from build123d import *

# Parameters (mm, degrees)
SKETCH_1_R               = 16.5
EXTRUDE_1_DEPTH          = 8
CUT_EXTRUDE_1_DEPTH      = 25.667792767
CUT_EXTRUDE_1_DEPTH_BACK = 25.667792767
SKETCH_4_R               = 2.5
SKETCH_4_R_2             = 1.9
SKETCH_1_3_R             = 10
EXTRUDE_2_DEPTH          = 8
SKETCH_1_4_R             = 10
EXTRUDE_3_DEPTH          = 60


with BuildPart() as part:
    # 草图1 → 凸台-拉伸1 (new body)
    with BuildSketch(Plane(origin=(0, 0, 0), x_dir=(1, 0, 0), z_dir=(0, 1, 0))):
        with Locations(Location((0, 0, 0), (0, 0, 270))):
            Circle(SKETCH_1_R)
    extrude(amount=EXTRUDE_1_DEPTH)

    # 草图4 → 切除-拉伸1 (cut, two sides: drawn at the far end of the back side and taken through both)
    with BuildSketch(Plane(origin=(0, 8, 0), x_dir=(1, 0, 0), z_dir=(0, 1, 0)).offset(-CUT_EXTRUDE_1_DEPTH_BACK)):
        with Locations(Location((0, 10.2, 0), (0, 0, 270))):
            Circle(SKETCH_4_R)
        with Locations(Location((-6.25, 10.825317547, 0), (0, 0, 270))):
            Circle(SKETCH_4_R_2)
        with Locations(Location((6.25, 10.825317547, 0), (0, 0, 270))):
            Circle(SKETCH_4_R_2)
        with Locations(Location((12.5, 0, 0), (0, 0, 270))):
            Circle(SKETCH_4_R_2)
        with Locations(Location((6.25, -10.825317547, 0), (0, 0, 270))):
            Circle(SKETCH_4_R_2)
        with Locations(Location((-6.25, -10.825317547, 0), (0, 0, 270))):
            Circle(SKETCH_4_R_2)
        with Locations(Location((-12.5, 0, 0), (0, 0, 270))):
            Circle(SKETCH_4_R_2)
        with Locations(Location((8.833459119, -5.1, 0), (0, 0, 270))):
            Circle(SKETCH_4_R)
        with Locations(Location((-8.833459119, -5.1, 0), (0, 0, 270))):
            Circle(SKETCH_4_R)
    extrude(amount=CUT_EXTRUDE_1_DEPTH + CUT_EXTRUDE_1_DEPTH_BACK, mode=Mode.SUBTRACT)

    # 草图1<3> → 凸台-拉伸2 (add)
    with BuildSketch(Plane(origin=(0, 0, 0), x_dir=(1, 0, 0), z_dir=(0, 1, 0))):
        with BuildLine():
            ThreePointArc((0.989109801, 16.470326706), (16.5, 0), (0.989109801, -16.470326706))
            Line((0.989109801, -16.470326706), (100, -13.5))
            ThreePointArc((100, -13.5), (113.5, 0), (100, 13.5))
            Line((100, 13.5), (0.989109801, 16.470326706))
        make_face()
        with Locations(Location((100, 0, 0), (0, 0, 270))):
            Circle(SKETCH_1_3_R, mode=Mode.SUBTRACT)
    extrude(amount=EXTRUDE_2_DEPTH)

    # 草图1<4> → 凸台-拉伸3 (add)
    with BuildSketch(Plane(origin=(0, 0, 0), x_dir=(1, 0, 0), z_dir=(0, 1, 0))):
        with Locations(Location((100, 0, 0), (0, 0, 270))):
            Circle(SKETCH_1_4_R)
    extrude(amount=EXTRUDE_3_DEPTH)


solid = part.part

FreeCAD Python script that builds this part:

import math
import FreeCAD as App
import Part
import Sketcher

doc = App.newDocument("Part")
body = doc.addObject("PartDesign::Body", "Body")

sketch1 = body.newObject("Sketcher::SketchObject", "Sketch")
sketch1.AttachmentSupport = (doc.getObject("XZ_Plane"), [""])
sketch1.MapMode = "FlatFace"
sketch1.addGeometry(Part.Circle(App.Vector(0, 0, 0), App.Vector(0, 0, 1), 16), False)
sketch1.addConstraint(Sketcher.Constraint("Coincident", 0, 3, -1, 1))
sketch1.addConstraint(Sketcher.Constraint("Diameter", 0, 33.0))
pad1 = body.newObject("PartDesign::Pad", "Pad")
pad1.Profile = sketch1
pad1.Length = 8
pad1.Reversed = True

sketch2 = body.newObject("Sketcher::SketchObject", "Sketch001")
sketch2.AttachmentSupport = (doc.getObject("XZ_Plane"), [""])
sketch2.MapMode = "FlatFace"
sketch2.AttachmentOffset = App.Placement(App.Vector(0, 0, -8), App.Rotation())
sketch2.addGeometry(Part.Circle(App.Vector(0, -10.2, 0), App.Vector(0, 0, 1), 2.5), False)
sketch2.addGeometry(Part.Circle(App.Vector(-6.2, -10.8, 0), App.Vector(0, 0, 1), 1.9), False)
sketch2.addGeometry(Part.Circle(App.Vector(6.2, -10.8, 0), App.Vector(0, 0, 1), 1.9), False)
sketch2.addGeometry(Part.Circle(App.Vector(12.5, 0, 0), App.Vector(0, 0, 1), 1.9), False)
sketch2.addGeometry(Part.Circle(App.Vector(6.2, 10.8, 0), App.Vector(0, 0, 1), 1.9), False)
sketch2.addGeometry(Part.Circle(App.Vector(-6.2, 10.8, 0), App.Vector(0, 0, 1), 1.9), False)
sketch2.addGeometry(Part.Circle(App.Vector(-12.5, 0, 0), App.Vector(0, 0, 1), 1.9), False)
sketch2.addGeometry(Part.Circle(App.Vector(8.8, 5.1, 0), App.Vector(0, 0, 1), 2.5), False)
sketch2.addGeometry(Part.Circle(App.Vector(-8.8, 5.1, 0), App.Vector(0, 0, 1), 2.5), False)
sketch2.addConstraint(Sketcher.Constraint("Equal", 1, 2))
sketch2.addConstraint(Sketcher.Constraint("Equal", 2, 3))
sketch2.addConstraint(Sketcher.Constraint("Equal", 3, 4))
sketch2.addConstraint(Sketcher.Constraint("Equal", 4, 5))
sketch2.addConstraint(Sketcher.Constraint("Equal", 5, 6))
sketch2.addConstraint(Sketcher.Constraint("Equal", 0, 7))
sketch2.addConstraint(Sketcher.Constraint("Equal", 7, 8))
sketch2.addConstraint(Sketcher.Constraint("Symmetric", 1, 3, 4, 3, -1, 1))
sketch2.addConstraint(Sketcher.Constraint("Symmetric", 2, 3, 5, 3, -1, 1))
sketch2.addConstraint(Sketcher.Constraint("Symmetric", 3, 3, 6, 3, -1, 1))
sketch2.addConstraint(Sketcher.Constraint("Symmetric", 1, 3, 2, 3, -2))
sketch2.addConstraint(Sketcher.Constraint("Symmetric", 7, 3, 8, 3, -2))
sketch2.addConstraint(Sketcher.Constraint("PointOnObject", 0, 3, -2))
sketch2.addConstraint(Sketcher.Constraint("PointOnObject", 3, 3, -1))
sketch2.addConstraint(Sketcher.Constraint("Diameter", 0, 5.0))
sketch2.addConstraint(Sketcher.Constraint("Diameter", 1, 3.8))
sketch2.addConstraint(Sketcher.Constraint("DistanceY", 0, 3, -1, 1, 10.2))
sketch2.addConstraint(Sketcher.Constraint("DistanceX", -1, 1, 3, 3, 12.5))
sketch2.addConstraint(Sketcher.Constraint("DistanceY", -1, 1, 7, 3, 5.1))
sketch2.addConstraint(Sketcher.Constraint("DistanceX", 1, 3, 2, 3, 12.5))
sketch2.addConstraint(Sketcher.Constraint("DistanceX", -1, 1, 7, 3, 8.833459))
sketch2.addConstraint(Sketcher.Constraint("DistanceY", 1, 3, -1, 1, 10.825318))
pocket1 = body.newObject("PartDesign::Pocket", "Pocket")
pocket1.Profile = sketch2
pocket1.Type = "ThroughAll"
pocket1.Midplane = True

sketch3 = body.newObject("Sketcher::SketchObject", "Sketch002")
sketch3.AttachmentSupport = (doc.getObject("XZ_Plane"), [""])
sketch3.MapMode = "FlatFace"
sketch3.addGeometry(Part.ArcOfCircle(Part.Circle(App.Vector(0, 0, 0), App.Vector(0, 0, 1), 16), math.radians(-87), math.radians(87)), False)
sketch3.addGeometry(Part.LineSegment(App.Vector(1, 16, 0), App.Vector(100, 14, 0)), False)
sketch3.addGeometry(Part.ArcOfCircle(Part.Circle(App.Vector(100, 0, 0), App.Vector(0, 0, 1), 14), math.radians(-90), math.radians(90)), False)
sketch3.addGeometry(Part.LineSegment(App.Vector(100, -14, 0), App.Vector(1, -16, 0)), False)
sketch3.addGeometry(Part.Circle(App.Vector(100, 0, 0), App.Vector(0, 0, 1), 10), False)
sketch3.addConstraint(Sketcher.Constraint("Coincident", 0, 2, 1, 1))
sketch3.addConstraint(Sketcher.Constraint("Coincident", 1, 2, 2, 2))
sketch3.addConstraint(Sketcher.Constraint("Coincident", 2, 1, 3, 1))
sketch3.addConstraint(Sketcher.Constraint("Coincident", 3, 2, 0, 1))
sketch3.addConstraint(Sketcher.Constraint("Coincident", 0, 3, -1, 1))
sketch3.addConstraint(Sketcher.Constraint("Coincident", 4, 3, 2, 3))
sketch3.addConstraint(Sketcher.Constraint("Symmetric", 1, 2, 2, 1, -1))
sketch3.addConstraint(Sketcher.Constraint("Vertical", 4, 3, 1, 2))
sketch3.addConstraint(Sketcher.Constraint("Vertical", 0, 2, 3, 2))
sketch3.addConstraint(Sketcher.Constraint("Diameter", 4, 20.0))
sketch3.addConstraint(Sketcher.Constraint("Radius", 0, 16.5))
sketch3.addConstraint(Sketcher.Constraint("Radius", 2, 13.5))
sketch3.addConstraint(Sketcher.Constraint("DistanceX", -1, 1, 2, 3, 100.0))
sketch3.addConstraint(Sketcher.Constraint("DistanceX", -1, 1, 0, 2, 0.98911))
pad2 = body.newObject("PartDesign::Pad", "Pad001")
pad2.Profile = sketch3
pad2.Length = 8
pad2.Reversed = True

sketch4 = body.newObject("Sketcher::SketchObject", "Sketch003")
sketch4.AttachmentSupport = (doc.getObject("XZ_Plane"), [""])
sketch4.MapMode = "FlatFace"
sketch4.addGeometry(Part.Circle(App.Vector(100, 0, 0), App.Vector(0, 0, 1), 10), False)
sketch4.addConstraint(Sketcher.Constraint("PointOnObject", 0, 3, -1))
sketch4.addConstraint(Sketcher.Constraint("Diameter", 0, 20.0))
sketch4.addConstraint(Sketcher.Constraint("DistanceX", -1, 1, 0, 3, 100.0))
pad3 = body.newObject("PartDesign::Pad", "Pad002")
pad3.Profile = sketch4
pad3.Length = 60
pad3.Reversed = True

doc.recompute()
